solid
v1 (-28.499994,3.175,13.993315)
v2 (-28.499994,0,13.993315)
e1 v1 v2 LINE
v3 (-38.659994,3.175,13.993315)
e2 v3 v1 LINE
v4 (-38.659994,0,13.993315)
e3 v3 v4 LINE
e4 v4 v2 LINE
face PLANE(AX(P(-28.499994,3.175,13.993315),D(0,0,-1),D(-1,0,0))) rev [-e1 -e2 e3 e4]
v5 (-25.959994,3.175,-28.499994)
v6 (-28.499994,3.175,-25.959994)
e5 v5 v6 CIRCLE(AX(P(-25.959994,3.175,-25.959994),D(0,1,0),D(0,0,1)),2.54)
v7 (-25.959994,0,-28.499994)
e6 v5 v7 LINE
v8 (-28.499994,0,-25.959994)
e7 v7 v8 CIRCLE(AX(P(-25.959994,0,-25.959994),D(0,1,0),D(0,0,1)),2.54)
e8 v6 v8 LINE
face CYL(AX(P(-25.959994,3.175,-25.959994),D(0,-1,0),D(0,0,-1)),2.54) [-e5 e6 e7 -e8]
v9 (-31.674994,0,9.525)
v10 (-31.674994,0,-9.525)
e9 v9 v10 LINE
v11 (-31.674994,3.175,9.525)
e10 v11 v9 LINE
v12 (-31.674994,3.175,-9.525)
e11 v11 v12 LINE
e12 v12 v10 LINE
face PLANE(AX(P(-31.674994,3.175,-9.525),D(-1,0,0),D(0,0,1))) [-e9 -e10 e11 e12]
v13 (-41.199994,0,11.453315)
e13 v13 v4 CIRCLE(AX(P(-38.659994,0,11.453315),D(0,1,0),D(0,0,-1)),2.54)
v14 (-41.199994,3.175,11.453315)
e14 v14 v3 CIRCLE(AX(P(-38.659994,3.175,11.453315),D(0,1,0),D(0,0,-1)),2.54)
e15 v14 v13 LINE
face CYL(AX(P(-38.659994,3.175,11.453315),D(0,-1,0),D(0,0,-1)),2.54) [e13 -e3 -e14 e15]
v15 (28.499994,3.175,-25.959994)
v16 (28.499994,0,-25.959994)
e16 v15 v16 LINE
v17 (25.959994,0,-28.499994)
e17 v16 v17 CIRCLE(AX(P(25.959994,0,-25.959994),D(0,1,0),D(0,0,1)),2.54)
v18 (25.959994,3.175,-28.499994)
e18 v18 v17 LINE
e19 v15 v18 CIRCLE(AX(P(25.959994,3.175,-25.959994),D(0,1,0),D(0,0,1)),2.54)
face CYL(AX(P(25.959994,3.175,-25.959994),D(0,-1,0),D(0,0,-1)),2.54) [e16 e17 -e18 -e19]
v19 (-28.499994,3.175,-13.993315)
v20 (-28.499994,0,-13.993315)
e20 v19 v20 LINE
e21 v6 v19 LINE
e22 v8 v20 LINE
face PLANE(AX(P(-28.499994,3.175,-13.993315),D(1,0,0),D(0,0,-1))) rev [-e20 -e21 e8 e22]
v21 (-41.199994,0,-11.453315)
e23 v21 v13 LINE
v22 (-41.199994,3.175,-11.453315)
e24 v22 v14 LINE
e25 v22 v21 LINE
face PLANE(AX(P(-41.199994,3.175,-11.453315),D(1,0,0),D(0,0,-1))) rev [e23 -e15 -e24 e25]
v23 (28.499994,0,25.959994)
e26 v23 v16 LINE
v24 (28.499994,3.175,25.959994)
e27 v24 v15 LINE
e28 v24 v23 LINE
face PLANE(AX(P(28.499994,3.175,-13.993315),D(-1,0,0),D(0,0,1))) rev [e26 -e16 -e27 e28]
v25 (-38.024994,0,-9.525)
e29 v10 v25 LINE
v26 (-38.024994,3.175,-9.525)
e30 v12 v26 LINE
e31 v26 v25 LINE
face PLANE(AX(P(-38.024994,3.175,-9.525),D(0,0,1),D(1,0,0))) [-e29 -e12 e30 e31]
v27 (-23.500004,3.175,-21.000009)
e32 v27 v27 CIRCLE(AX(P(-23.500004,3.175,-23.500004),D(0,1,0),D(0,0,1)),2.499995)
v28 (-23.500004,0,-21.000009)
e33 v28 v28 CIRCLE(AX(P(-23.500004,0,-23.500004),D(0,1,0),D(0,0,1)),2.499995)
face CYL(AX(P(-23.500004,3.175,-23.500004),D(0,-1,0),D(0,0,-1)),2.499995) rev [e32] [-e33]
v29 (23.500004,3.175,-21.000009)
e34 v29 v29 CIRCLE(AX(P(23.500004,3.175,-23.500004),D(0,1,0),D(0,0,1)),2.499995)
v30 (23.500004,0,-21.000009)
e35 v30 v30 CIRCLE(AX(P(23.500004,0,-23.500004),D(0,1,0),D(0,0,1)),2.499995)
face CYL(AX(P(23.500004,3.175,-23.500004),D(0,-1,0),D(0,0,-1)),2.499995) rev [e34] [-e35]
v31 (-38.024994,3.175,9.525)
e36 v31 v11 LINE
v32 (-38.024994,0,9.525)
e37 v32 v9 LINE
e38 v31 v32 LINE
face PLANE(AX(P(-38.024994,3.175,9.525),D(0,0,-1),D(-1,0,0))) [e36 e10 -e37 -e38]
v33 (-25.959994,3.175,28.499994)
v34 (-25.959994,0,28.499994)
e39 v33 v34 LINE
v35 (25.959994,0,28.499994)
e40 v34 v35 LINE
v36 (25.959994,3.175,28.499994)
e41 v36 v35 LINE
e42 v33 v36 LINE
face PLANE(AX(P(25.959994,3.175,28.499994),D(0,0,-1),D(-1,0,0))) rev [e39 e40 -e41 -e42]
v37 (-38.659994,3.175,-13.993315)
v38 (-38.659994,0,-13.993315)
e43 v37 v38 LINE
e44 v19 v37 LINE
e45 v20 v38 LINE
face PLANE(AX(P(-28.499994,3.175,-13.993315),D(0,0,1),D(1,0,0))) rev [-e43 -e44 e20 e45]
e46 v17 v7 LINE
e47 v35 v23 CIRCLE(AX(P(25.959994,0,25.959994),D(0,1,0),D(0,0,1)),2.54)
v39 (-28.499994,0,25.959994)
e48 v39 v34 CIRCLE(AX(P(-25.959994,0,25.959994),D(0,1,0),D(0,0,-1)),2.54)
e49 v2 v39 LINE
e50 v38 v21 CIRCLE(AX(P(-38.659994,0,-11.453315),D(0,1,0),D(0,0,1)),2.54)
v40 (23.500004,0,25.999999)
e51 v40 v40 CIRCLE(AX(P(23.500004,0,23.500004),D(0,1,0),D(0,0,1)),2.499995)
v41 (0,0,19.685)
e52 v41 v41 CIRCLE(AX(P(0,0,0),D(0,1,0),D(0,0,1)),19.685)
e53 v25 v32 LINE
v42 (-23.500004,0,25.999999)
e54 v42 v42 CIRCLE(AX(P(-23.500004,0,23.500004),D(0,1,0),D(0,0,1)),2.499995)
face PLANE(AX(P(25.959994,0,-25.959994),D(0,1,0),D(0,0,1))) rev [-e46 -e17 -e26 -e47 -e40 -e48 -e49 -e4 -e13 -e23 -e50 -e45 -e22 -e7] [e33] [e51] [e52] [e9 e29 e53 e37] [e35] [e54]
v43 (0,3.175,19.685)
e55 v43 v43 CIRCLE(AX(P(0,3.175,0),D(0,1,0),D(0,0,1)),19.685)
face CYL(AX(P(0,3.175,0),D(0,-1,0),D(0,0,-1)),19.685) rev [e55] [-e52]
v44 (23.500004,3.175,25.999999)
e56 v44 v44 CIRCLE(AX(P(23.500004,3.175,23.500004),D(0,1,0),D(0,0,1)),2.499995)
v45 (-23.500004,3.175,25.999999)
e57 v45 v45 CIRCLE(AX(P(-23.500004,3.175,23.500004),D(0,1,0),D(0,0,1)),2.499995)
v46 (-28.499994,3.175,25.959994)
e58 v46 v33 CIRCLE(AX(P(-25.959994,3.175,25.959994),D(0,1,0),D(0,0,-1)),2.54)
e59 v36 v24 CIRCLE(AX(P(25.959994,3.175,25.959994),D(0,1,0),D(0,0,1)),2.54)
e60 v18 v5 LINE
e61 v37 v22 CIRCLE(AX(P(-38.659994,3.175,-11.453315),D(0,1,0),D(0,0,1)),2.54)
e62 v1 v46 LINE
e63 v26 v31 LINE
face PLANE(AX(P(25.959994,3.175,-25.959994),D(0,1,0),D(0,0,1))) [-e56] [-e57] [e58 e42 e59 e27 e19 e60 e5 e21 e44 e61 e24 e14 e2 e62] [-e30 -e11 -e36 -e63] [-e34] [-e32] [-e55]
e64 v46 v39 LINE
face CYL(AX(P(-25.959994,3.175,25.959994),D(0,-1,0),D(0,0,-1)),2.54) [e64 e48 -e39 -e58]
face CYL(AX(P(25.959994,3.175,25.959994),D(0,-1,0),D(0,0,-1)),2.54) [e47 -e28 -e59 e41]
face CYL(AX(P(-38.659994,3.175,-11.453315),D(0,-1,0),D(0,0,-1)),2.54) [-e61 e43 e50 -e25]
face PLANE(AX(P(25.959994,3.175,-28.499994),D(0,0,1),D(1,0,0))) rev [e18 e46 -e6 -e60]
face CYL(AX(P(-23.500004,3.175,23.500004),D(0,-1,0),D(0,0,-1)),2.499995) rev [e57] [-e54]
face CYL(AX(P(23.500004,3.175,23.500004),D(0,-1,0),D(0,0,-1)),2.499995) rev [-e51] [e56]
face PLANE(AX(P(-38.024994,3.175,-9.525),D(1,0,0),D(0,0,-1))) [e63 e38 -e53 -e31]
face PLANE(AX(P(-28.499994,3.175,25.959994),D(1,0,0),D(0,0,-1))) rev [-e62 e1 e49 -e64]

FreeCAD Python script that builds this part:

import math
import FreeCAD as App
import Part
import Sketcher
Q = App.Units.Quantity

doc = App.newDocument("Part")
body = doc.addObject("PartDesign::Body", "Body")

# Sketch on XZ plane
sketch1 = body.newObject("Sketcher::SketchObject", "Sketch")
sketch1.AttachmentSupport = (doc.getObject("XZ_Plane"), [""])
sketch1.MapMode = "FlatFace"
sketch1.addGeometry(Part.ArcOfCircle(Part.Circle(App.Vector(-26, -26, 0), App.Vector(0, 0, 1), 2.5), math.radians(-180), math.radians(-90)), False)
sketch1.addGeometry(Part.LineSegment(App.Vector(-28.5, -26, 0), App.Vector(-28.5, -14, 0)), False)
sketch1.addGeometry(Part.LineSegment(App.Vector(-28.5, -14, 0), App.Vector(-38.7, -14, 0)), False)
sketch1.addGeometry(Part.ArcOfCircle(Part.Circle(App.Vector(-38.7, -11.5, 0), App.Vector(0, 0, 1), 2.5), math.radians(-180), math.radians(-90)), False)
sketch1.addGeometry(Part.LineSegment(App.Vector(-41.2, -11.5, 0), App.Vector(-41.2, 11.5, 0)), False)
sketch1.addGeometry(Part.ArcOfCircle(Part.Circle(App.Vector(-38.7, 11.5, 0), App.Vector(0, 0, 1), 2.5), math.radians(90), math.radians(180)), False)
sketch1.addGeometry(Part.LineSegment(App.Vector(-38.7, 14, 0), App.Vector(-28.5, 14, 0)), False)
sketch1.addGeometry(Part.LineSegment(App.Vector(-28.5, 14, 0), App.Vector(-28.5, 26, 0)), False)
sketch1.addGeometry(Part.ArcOfCircle(Part.Circle(App.Vector(-26, 26, 0), App.Vector(0, 0, 1), 2.5), math.radians(90), math.radians(180)), False)
sketch1.addGeometry(Part.LineSegment(App.Vector(-26, 28.5, 0), App.Vector(26, 28.5, 0)), False)
sketch1.addGeometry(Part.ArcOfCircle(Part.Circle(App.Vector(26, 26, 0), App.Vector(0, 0, 1), 2.5), math.radians(0), math.radians(90)), False)
sketch1.addGeometry(Part.LineSegment(App.Vector(28.5, 26, 0), App.Vector(28.5, -26, 0)), False)
sketch1.addGeometry(Part.ArcOfCircle(Part.Circle(App.Vector(26, -26, 0), App.Vector(0, 0, 1), 2.5), math.radians(-90), math.radians(0)), False)
sketch1.addGeometry(Part.LineSegment(App.Vector(26, -28.5, 0), App.Vector(-26, -28.5, 0)), False)
sketch1.addGeometry(Part.Circle(App.Vector(-23.5, 23.5, 0), App.Vector(0, 0, 1), 2.5), False)
sketch1.addGeometry(Part.Circle(App.Vector(23.5, 23.5, 0), App.Vector(0, 0, 1), 2.5), False)
sketch1.addGeometry(Part.LineSegment(App.Vector(-31.7, 9.5, 0), App.Vector(-38, 9.5, 0)), False)
sketch1.addGeometry(Part.LineSegment(App.Vector(-38, 9.5, 0), App.Vector(-38, -9.5, 0)), False)
sketch1.addGeometry(Part.LineSegment(App.Vector(-38, -9.5, 0), App.Vector(-31.7, -9.5, 0)), False)
sketch1.addGeometry(Part.LineSegment(App.Vector(-31.7, -9.5, 0), App.Vector(-31.7, 9.5, 0)), False)
sketch1.addGeometry(Part.Circle(App.Vector(-23.5, -23.5, 0), App.Vector(0, 0, 1), 2.5), False)
sketch1.addGeometry(Part.Circle(App.Vector(0, 0, 0), App.Vector(0, 0, 1), 19.7), False)
sketch1.addGeometry(Part.Circle(App.Vector(23.5, -23.5, 0), App.Vector(0, 0, 1), 2.5), False)
sketch1.addConstraint(Sketcher.Constraint("Tangent", 0, 1, 1, 1))
sketch1.addConstraint(Sketcher.Constraint("Coincident", 1, 2, 2, 1))
sketch1.addConstraint(Sketcher.Constraint("Tangent", 2, 2, 3, 2))
sketch1.addConstraint(Sketcher.Constraint("Tangent", 3, 1, 4, 1))
sketch1.addConstraint(Sketcher.Constraint("Tangent", 4, 2, 5, 2))
sketch1.addConstraint(Sketcher.Constraint("Tangent", 5, 1, 6, 1))
sketch1.addConstraint(Sketcher.Constraint("Coincident", 6, 2, 7, 1))
sketch1.addConstraint(Sketcher.Constraint("Tangent", 7, 2, 8, 2))
sketch1.addConstraint(Sketcher.Constraint("Tangent", 8, 1, 9, 1))
sketch1.addConstraint(Sketcher.Constraint("Tangent", 9, 2, 10, 2))
sketch1.addConstraint(Sketcher.Constraint("Tangent", 10, 1, 11, 1))
sketch1.addConstraint(Sketcher.Constraint("Tangent", 11, 2, 12, 2))
sketch1.addConstraint(Sketcher.Constraint("Tangent", 12, 1, 13, 1))
sketch1.addConstraint(Sketcher.Constraint("Tangent", 13, 2, 0, 2))
sketch1.addConstraint(Sketcher.Constraint("Coincident", 16, 2, 17, 1))
sketch1.addConstraint(Sketcher.Constraint("Coincident", 17, 2, 18, 1))
sketch1.addConstraint(Sketcher.Constraint("Coincident", 18, 2, 19, 1))
sketch1.addConstraint(Sketcher.Constraint("Coincident", 19, 2, 16, 1))
sketch1.addConstraint(Sketcher.Constraint("Vertical", 1))
sketch1.addConstraint(Sketcher.Constraint("Horizontal", 2))
sketch1.addConstraint(Sketcher.Constraint("Vertical", 4))
sketch1.addConstraint(Sketcher.Constraint("Horizontal", 6))
sketch1.addConstraint(Sketcher.Constraint("Vertical", 7))
sketch1.addConstraint(Sketcher.Constraint("Horizontal", 9))
sketch1.addConstraint(Sketcher.Constraint("Vertical", 11))
sketch1.addConstraint(Sketcher.Constraint("Horizontal", 13))
sketch1.addConstraint(Sketcher.Constraint("Horizontal", 16))
sketch1.addConstraint(Sketcher.Constraint("Vertical", 17))
sketch1.addConstraint(Sketcher.Constraint("Horizontal", 18))
sketch1.addConstraint(Sketcher.Constraint("Vertical", 19))
sketch1.addConstraint(Sketcher.Constraint("Coincident", 21, 3, -1, 1))
sketch1.addConstraint(Sketcher.Constraint("Equal", 0, 3))
sketch1.addConstraint(Sketcher.Constraint("Equal", 3, 5))
sketch1.addConstraint(Sketcher.Constraint("Equal", 5, 8))
sketch1.addConstraint(Sketcher.Constraint("Equal", 8, 10))
sketch1.addConstraint(Sketcher.Constraint("Equal", 10, 12))
sketch1.addConstraint(Sketcher.Constraint("Equal", 14, 15))
sketch1.addConstraint(Sketcher.Constraint("Equal", 15, 20))
sketch1.addConstraint(Sketcher.Constraint("Equal", 20, 22))
sketch1.addConstraint(Sketcher.Constraint("Symmetric", 0, 3, 10, 3, -1, 1))
sketch1.addConstraint(Sketcher.Constraint("Symmetric", 15, 3, 20, 3, -1, 1))
sketch1.addConstraint(Sketcher.Constraint("Symmetric", 14, 3, 22, 3, -1, 1))
sketch1.addConstraint(Sketcher.Constraint("Symmetric", 14, 3, 15, 3, -2))
sketch1.addConstraint(Sketcher.Constraint("Symmetric", 1, 2, 6, 2, -1))
sketch1.addConstraint(Sketcher.Constraint("Equal", 13, 11))
sketch1.addConstraint(Sketcher.Constraint("Radius", 0, Q("0.1 in")))
sketch1.addConstraint(Sketcher.Constraint("Diameter", 21, Q("1.55 in")))
sketch1.addConstraint(Sketcher.Constraint("DistanceX", 2, 2, 2, 1, Q("0.4 in")))
sketch1.addConstraint(Sketcher.Constraint("DistanceX", 16, 2, 16, 1, Q("0.25 in")))
sketch1.addConstraint(Sketcher.Constraint("DistanceY", 17, 2, 17, 1, Q("0.75 in")))
sketch1.addConstraint(Sketcher.Constraint("Diameter", 14, 4.99999))
sketch1.addConstraint(Sketcher.Constraint("DistanceY", -1, 1, 16, 2, Q("0.375 in")))
sketch1.addConstraint(Sketcher.Constraint("DistanceX", 5, 3, 16, 2, Q("0.025 in")))
sketch1.addConstraint(Sketcher.Constraint("DistanceY", 1, 1, 1, 2, 11.966679))
sketch1.addConstraint(Sketcher.Constraint("DistanceY", 4, 1, 4, 2, 22.906629))
sketch1.addConstraint(Sketcher.Constraint("DistanceX", 8, 3, 14, 3, 2.45999))
sketch1.addConstraint(Sketcher.Constraint("DistanceY", 14, 3, 8, 3, 2.45999))
pad1 = body.newObject("PartDesign::Pad", "Pad")
pad1.Profile = sketch1
pad1.Length = Q("0.125 in")
pad1.Reversed = True

doc.recompute()
